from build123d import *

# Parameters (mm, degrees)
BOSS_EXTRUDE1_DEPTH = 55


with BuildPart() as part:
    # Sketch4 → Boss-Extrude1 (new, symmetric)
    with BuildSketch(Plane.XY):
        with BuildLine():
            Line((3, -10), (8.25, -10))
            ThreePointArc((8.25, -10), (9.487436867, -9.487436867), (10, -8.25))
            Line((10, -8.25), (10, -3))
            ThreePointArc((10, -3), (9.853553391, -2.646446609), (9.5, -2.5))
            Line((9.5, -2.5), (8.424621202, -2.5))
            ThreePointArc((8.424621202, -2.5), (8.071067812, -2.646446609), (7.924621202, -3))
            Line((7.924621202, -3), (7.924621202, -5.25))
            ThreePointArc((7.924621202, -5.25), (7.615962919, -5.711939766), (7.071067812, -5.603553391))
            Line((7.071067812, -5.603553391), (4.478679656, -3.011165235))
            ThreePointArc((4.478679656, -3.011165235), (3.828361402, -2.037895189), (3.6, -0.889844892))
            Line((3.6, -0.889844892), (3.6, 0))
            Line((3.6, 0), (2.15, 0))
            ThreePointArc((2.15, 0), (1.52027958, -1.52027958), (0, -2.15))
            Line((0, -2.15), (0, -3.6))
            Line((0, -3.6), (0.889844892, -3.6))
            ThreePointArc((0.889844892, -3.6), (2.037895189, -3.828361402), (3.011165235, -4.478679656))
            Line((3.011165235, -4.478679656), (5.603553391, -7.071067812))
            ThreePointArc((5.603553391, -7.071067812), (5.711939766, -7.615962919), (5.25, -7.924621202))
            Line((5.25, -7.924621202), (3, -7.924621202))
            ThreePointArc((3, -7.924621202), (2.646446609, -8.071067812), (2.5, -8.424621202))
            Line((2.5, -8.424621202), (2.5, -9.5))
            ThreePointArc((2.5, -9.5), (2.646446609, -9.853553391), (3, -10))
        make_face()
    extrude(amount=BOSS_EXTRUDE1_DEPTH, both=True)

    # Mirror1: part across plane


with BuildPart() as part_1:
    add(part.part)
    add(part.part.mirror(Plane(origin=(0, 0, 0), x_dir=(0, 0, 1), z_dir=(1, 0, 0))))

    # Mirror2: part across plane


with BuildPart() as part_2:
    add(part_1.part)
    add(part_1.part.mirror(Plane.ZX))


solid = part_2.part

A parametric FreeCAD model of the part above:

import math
import FreeCAD as App
import Part
import Sketcher
from FreeCAD import Vector

doc = App.newDocument("Part")
body = doc.addObject("PartDesign::Body", "Body")

# Sketch on XY plane
sketch1 = doc.addObject("Sketcher::SketchObject", "Sketch")
body.addObject(sketch1)
sketch1.AttachmentSupport = (doc.XY_Plane, [""])
sketch1.MapMode = "FlatFace"
sketch1.addGeometry(Part.LineSegment(Vector(3, -10, 0), Vector(8.25, -10, 0)), False)
sketch1.addGeometry(Part.ArcOfCircle(Part.Circle(Vector(8.25, -8.25, 0), Vector(0, 0, 1), 1.75), math.radians(-90), math.radians(0)), False)
sketch1.addGeometry(Part.LineSegment(Vector(10, -8.25, 0), Vector(10, -3, 0)), False)
sketch1.addGeometry(Part.ArcOfCircle(Part.Circle(Vector(9.5, -3, 0), Vector(0, 0, 1), 0.5), math.radians(0), math.radians(90)), False)
sketch1.addGeometry(Part.LineSegment(Vector(9.5, -2.5, 0), Vector(8.42, -2.5, 0)), False)
sketch1.addGeometry(Part.ArcOfCircle(Part.Circle(Vector(8.42, -3, 0), Vector(0, 0, 1), 0.5), math.radians(90), math.radians(180)), False)
sketch1.addGeometry(Part.LineSegment(Vector(7.92, -3, 0), Vector(7.92, -5.25, 0)), False)
sketch1.addGeometry(Part.ArcOfCircle(Part.Circle(Vector(7.42, -5.25, 0), Vector(0, 0, 1), 0.5), math.radians(-135), math.radians(0)), False)
sketch1.addGeometry(Part.LineSegment(Vector(7.07, -5.6, 0), Vector(4.48, -3.01, 0)), False)
sketch1.addGeometry(Part.ArcOfCircle(Part.Circle(Vector(6.6, -0.89, 0), Vector(0, 0, 1), 3), math.radians(180), math.radians(225)), False)
sketch1.addGeometry(Part.LineSegment(Vector(3.6, -0.89, 0), Vector(3.6, 0, 0)), False)
sketch1.addGeometry(Part.LineSegment(Vector(3.6, 0, 0), Vector(2.15, 0, 0)), False)
sketch1.addGeometry(Part.ArcOfCircle(Part.Circle(Vector(0, 0, 0), Vector(0, 0, 1), 2.15), math.radians(-90), math.radians(0)), False)
sketch1.addGeometry(Part.LineSegment(Vector(0, -2.15, 0), Vector(0, -3.6, 0)), False)
sketch1.addGeometry(Part.LineSegment(Vector(0, -3.6, 0), Vector(0.89, -3.6, 0)), False)
sketch1.addGeometry(Part.ArcOfCircle(Part.Circle(Vector(0.89, -6.6, 0), Vector(0, 0, 1), 3), math.radians(45), math.radians(90)), False)
sketch1.addGeometry(Part.LineSegment(Vector(3.01, -4.48, 0), Vector(5.6, -7.07, 0)), False)
sketch1.addGeometry(Part.ArcOfCircle(Part.Circle(Vector(5.25, -7.42, 0), Vector(0, 0, 1), 0.5), math.radians(-90), math.radians(45)), False)
sketch1.addGeometry(Part.LineSegment(Vector(5.25, -7.92, 0), Vector(3, -7.92, 0)), False)
sketch1.addGeometry(Part.ArcOfCircle(Part.Circle(Vector(3, -8.42, 0), Vector(0, 0, 1), 0.5), math.radians(90), math.radians(180)), False)
sketch1.addGeometry(Part.LineSegment(Vector(2.5, -8.42, 0), Vector(2.5, -9.5, 0)), False)
sketch1.addGeometry(Part.ArcOfCircle(Part.Circle(Vector(3, -9.5, 0), Vector(0, 0, 1), 0.5), math.radians(180), math.radians(270)), False)
sketch1.addConstraint(Sketcher.Constraint("Tangent", 0, 2, 1, 1))
sketch1.addConstraint(Sketcher.Constraint("Tangent", 1, 2, 2, 1))
sketch1.addConstraint(Sketcher.Constraint("Tangent", 2, 2, 3, 1))
sketch1.addConstraint(Sketcher.Constraint("Tangent", 3, 2, 4, 1))
sketch1.addConstraint(Sketcher.Constraint("Tangent", 4, 2, 5, 1))
sketch1.addConstraint(Sketcher.Constraint("Tangent", 5, 2, 6, 1))
sketch1.addConstraint(Sketcher.Constraint("Tangent", 6, 2, 7, 2))
sketch1.addConstraint(Sketcher.Constraint("Tangent", 7, 1, 8, 1))
sketch1.addConstraint(Sketcher.Constraint("Tangent", 8, 2, 9, 2))
sketch1.addConstraint(Sketcher.Constraint("Tangent", 9, 1, 10, 1))
sketch1.addConstraint(Sketcher.Constraint("Coincident", 10, 2, 11, 1))
sketch1.addConstraint(Sketcher.Constraint("Coincident", 11, 2, 12, 2))
sketch1.addConstraint(Sketcher.Constraint("Coincident", 12, 1, 13, 1))
sketch1.addConstraint(Sketcher.Constraint("Coincident", 13, 2, 14, 1))
sketch1.addConstraint(Sketcher.Constraint("Tangent", 14, 2, 15, 2))
sketch1.addConstraint(Sketcher.Constraint("Tangent", 15, 1, 16, 1))
sketch1.addConstraint(Sketcher.Constraint("Tangent", 16, 2, 17, 2))
sketch1.addConstraint(Sketcher.Constraint("Tangent", 17, 1, 18, 1))
sketch1.addConstraint(Sketcher.Constraint("Tangent", 18, 2, 19, 1))
sketch1.addConstraint(Sketcher.Constraint("Tangent", 19, 2, 20, 1))
sketch1.addConstraint(Sketcher.Constraint("Tangent", 20, 2, 21, 1))
sketch1.addConstraint(Sketcher.Constraint("Tangent", 21, 2, 0, 1))
sketch1.addConstraint(Sketcher.Constraint("Horizontal", 0))
sketch1.addConstraint(Sketcher.Constraint("Vertical", 2))
sketch1.addConstraint(Sketcher.Constraint("Horizontal", 4))
sketch1.addConstraint(Sketcher.Constraint("Vertical", 6))
sketch1.addConstraint(Sketcher.Constraint("Vertical", 10))
sketch1.addConstraint(Sketcher.Constraint("Horizontal", 11))
sketch1.addConstraint(Sketcher.Constraint("Vertical", 13))
sketch1.addConstraint(Sketcher.Constraint("Horizontal", 14))
sketch1.addConstraint(Sketcher.Constraint("Horizontal", 18))
sketch1.addConstraint(Sketcher.Constraint("Vertical", 20))
sketch1.addConstraint(Sketcher.Constraint("Coincident", 12, 3, -1, 1))
sketch1.addConstraint(Sketcher.Constraint("Equal", 3, 5))
sketch1.addConstraint(Sketcher.Constraint("Equal", 5, 7))
sketch1.addConstraint(Sketcher.Constraint("Equal", 9, 15))
sketch1.addConstraint(Sketcher.Constraint("Equal", 7, 17))
sketch1.addConstraint(Sketcher.Constraint("Equal", 17, 19))
sketch1.addConstraint(Sketcher.Constraint("Equal", 19, 21))
sketch1.addConstraint(Sketcher.Constraint("PointOnObject", 10, 2, -1))
sketch1.addConstraint(Sketcher.Constraint("PointOnObject", 12, 1, -2))
sketch1.addConstraint(Sketcher.Constraint("Parallel", 8, 16))
sketch1.addConstraint(Sketcher.Constraint("Equal", 0, 2))
sketch1.addConstraint(Sketcher.Constraint("Equal", 18, 6))
sketch1.addConstraint(Sketcher.Constraint("Equal", 14, 10))
sketch1.addConstraint(Sketcher.Constraint("Equal", 11, 13))
sketch1.addConstraint(Sketcher.Constraint("Equal", 4, 20))
sketch1.addConstraint(Sketcher.Constraint("Equal", 8, 16))
sketch1.addConstraint(Sketcher.Constraint("Radius", 9, 3.0))
sketch1.addConstraint(Sketcher.Constraint("Radius", 3, 0.5))
sketch1.addConstraint(Sketcher.Constraint("Radius", 1, 1.75))
sketch1.addConstraint(Sketcher.Constraint("Radius", 12, 2.15))
sketch1.addConstraint(Sketcher.Constraint("DistanceY", 3, 3, -1, 1, 3.0))
sketch1.addConstraint(Sketcher.Constraint("DistanceY", 0, 2, -1, 1, 10.0))
sketch1.addConstraint(Sketcher.Constraint("DistanceY", 1, 3, 7, 3, 3.0))
sketch1.addConstraint(Sketcher.Constraint("DistanceX", 11, 2, 11, 1, 1.45))
sketch1.addConstraint(Sketcher.Constraint("DistanceX", 4, 2, 4, 1, 1.075379))
pad1 = doc.addObject("PartDesign::Pad", "Pad")
body.addObject(pad1)
pad1.Profile = sketch1
pad1.Length = 110
pad1.Midplane = True
body2 = doc.addObject("PartDesign::Body", "Body001")
doc.recompute()

body2.BaseFeature = body
doc.recompute()

mirroring = doc.addObject("Part::Mirroring", "Mirroring")
mirroring.Source = body
mirroring.Base = Vector(0, 0, 0)
mirroring.Normal = Vector(1, 0, 0)
body3 = doc.addObject("PartDesign::Body", "Body002")
body3.BaseFeature = mirroring
boolean = doc.addObject("PartDesign::Boolean", "Boolean")
body2.addObject(boolean)
boolean.Type = "Fuse"
boolean.addObjects([body3])
doc.recompute()
body4 = doc.addObject("PartDesign::Body", "Body003")
doc.recompute()

body4.BaseFeature = body2
doc.recompute()

mirroring2 = doc.addObject("Part::Mirroring", "Mirroring001")
mirroring2.Source = body2
mirroring2.Base = Vector(0, 0, 0)
mirroring2.Normal = Vector(0, 1, 0)
body5 = doc.addObject("PartDesign::Body", "Body004")
body5.BaseFeature = mirroring2
boolean2 = doc.addObject("PartDesign::Boolean", "Boolean001")
body4.addObject(boolean2)
boolean2.Type = "Fuse"
boolean2.addObjects([body5])
doc.recompute()
mirroring.Visibility = False
mirroring2.Visibility = False

doc.recompute()
